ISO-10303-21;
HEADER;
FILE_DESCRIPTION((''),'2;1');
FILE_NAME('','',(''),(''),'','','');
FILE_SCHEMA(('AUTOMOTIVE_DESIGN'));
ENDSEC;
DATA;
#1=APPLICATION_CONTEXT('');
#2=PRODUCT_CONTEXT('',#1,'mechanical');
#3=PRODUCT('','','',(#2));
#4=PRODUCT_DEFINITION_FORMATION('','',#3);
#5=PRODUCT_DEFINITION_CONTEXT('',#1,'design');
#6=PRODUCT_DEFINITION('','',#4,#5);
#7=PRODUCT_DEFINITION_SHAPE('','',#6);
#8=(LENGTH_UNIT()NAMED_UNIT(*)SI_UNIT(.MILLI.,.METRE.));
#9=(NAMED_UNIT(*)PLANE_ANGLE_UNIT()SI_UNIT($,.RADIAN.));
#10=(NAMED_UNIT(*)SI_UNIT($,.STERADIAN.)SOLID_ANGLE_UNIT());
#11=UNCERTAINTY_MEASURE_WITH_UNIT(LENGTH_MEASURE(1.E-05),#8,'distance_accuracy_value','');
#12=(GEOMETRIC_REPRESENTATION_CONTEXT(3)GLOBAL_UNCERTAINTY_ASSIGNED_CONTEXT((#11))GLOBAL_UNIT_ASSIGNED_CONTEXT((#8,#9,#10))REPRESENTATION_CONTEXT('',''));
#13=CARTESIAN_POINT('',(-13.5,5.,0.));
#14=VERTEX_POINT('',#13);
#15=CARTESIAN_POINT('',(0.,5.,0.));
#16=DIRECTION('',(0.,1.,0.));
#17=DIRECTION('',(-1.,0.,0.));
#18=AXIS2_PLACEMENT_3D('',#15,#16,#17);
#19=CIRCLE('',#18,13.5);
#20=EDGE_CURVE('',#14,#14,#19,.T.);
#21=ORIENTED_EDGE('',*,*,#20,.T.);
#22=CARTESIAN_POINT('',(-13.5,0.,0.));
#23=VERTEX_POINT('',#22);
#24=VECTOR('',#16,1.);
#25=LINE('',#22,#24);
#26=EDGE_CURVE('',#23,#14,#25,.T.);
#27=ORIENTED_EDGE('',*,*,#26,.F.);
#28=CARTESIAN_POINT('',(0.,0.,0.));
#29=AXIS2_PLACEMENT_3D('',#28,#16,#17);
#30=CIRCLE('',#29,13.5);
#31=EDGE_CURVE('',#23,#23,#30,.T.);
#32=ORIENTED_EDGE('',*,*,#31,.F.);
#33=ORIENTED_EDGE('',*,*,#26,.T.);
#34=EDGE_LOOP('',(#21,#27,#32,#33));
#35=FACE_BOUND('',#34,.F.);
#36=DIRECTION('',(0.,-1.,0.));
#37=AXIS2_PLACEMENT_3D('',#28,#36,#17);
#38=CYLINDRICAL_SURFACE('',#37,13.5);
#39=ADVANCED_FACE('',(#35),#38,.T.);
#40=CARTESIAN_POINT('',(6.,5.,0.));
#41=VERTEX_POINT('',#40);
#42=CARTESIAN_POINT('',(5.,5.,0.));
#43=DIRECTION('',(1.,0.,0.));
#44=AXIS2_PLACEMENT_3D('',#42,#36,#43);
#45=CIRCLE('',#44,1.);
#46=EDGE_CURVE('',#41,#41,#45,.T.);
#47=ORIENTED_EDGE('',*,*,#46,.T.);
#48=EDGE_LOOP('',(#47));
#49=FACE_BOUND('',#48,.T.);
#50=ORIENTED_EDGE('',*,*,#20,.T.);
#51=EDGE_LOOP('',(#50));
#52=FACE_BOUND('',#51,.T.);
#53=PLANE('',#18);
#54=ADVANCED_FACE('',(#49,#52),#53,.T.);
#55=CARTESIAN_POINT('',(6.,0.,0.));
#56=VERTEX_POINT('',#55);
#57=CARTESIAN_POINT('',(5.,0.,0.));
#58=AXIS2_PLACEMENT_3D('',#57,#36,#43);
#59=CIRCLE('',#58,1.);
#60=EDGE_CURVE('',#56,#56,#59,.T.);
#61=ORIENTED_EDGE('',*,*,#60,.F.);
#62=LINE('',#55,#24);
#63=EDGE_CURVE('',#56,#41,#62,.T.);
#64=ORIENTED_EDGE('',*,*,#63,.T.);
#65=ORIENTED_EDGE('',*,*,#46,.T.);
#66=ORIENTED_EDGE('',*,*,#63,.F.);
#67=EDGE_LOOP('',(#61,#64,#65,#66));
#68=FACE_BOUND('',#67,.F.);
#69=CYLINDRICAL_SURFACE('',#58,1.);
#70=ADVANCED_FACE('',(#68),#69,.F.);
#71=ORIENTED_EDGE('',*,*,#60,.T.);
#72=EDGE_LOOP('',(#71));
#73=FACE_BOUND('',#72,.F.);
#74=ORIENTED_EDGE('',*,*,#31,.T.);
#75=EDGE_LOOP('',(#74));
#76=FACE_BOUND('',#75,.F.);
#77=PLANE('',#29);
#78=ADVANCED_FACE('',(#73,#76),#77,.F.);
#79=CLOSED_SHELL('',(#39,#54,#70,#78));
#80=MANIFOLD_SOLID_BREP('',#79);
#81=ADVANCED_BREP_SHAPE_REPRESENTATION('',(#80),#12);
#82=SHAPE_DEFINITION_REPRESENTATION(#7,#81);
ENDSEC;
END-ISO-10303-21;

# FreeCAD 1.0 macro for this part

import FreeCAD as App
import Part
import Sketcher
from FreeCAD import Vector
Q = App.Units.Quantity

doc = App.newDocument("Part")
body = doc.addObject("PartDesign::Body", "Body")

sketch1 = body.newObject("Sketcher::SketchObject", "Sketch")
sketch1.AttachmentSupport = (doc.getObject("XZ_Plane"), [""])
sketch1.MapMode = "FlatFace"
sketch1.addGeometry(Part.Circle(Vector(0, 0, 0), Vector(0, 0, 1), 13.5), False)
sketch1.addConstraint(Sketcher.Constraint("Coincident", 0, 3, -1, 1))
sketch1.addConstraint(Sketcher.Constraint("Diameter", 0, Q("27 mm")))
pad1 = body.newObject("PartDesign::Pad", "Pad")
pad1.Profile = sketch1
pad1.Length = 5
pad1.Reversed = True

sketch2 = body.newObject("Sketcher::SketchObject", "Sketch001")
sketch2.AttachmentSupport = (doc.getObject("XZ_Plane"), [""])
sketch2.MapMode = "FlatFace"
sketch2.addGeometry(Part.Circle(Vector(5, 0, 0), Vector(0, 0, 1), 1), False)
sketch2.addConstraint(Sketcher.Constraint("PointOnObject", 0, 3, -1))
sketch2.addConstraint(Sketcher.Constraint("Diameter", 0, Q("2 mm")))
sketch2.addConstraint(Sketcher.Constraint("DistanceX", -1, 1, 0, 3, Q("5 mm")))
pocket1 = body.newObject("PartDesign::Pocket", "Pocket")
pocket1.Profile = sketch2
pocket1.Length = 5

doc.recompute()
